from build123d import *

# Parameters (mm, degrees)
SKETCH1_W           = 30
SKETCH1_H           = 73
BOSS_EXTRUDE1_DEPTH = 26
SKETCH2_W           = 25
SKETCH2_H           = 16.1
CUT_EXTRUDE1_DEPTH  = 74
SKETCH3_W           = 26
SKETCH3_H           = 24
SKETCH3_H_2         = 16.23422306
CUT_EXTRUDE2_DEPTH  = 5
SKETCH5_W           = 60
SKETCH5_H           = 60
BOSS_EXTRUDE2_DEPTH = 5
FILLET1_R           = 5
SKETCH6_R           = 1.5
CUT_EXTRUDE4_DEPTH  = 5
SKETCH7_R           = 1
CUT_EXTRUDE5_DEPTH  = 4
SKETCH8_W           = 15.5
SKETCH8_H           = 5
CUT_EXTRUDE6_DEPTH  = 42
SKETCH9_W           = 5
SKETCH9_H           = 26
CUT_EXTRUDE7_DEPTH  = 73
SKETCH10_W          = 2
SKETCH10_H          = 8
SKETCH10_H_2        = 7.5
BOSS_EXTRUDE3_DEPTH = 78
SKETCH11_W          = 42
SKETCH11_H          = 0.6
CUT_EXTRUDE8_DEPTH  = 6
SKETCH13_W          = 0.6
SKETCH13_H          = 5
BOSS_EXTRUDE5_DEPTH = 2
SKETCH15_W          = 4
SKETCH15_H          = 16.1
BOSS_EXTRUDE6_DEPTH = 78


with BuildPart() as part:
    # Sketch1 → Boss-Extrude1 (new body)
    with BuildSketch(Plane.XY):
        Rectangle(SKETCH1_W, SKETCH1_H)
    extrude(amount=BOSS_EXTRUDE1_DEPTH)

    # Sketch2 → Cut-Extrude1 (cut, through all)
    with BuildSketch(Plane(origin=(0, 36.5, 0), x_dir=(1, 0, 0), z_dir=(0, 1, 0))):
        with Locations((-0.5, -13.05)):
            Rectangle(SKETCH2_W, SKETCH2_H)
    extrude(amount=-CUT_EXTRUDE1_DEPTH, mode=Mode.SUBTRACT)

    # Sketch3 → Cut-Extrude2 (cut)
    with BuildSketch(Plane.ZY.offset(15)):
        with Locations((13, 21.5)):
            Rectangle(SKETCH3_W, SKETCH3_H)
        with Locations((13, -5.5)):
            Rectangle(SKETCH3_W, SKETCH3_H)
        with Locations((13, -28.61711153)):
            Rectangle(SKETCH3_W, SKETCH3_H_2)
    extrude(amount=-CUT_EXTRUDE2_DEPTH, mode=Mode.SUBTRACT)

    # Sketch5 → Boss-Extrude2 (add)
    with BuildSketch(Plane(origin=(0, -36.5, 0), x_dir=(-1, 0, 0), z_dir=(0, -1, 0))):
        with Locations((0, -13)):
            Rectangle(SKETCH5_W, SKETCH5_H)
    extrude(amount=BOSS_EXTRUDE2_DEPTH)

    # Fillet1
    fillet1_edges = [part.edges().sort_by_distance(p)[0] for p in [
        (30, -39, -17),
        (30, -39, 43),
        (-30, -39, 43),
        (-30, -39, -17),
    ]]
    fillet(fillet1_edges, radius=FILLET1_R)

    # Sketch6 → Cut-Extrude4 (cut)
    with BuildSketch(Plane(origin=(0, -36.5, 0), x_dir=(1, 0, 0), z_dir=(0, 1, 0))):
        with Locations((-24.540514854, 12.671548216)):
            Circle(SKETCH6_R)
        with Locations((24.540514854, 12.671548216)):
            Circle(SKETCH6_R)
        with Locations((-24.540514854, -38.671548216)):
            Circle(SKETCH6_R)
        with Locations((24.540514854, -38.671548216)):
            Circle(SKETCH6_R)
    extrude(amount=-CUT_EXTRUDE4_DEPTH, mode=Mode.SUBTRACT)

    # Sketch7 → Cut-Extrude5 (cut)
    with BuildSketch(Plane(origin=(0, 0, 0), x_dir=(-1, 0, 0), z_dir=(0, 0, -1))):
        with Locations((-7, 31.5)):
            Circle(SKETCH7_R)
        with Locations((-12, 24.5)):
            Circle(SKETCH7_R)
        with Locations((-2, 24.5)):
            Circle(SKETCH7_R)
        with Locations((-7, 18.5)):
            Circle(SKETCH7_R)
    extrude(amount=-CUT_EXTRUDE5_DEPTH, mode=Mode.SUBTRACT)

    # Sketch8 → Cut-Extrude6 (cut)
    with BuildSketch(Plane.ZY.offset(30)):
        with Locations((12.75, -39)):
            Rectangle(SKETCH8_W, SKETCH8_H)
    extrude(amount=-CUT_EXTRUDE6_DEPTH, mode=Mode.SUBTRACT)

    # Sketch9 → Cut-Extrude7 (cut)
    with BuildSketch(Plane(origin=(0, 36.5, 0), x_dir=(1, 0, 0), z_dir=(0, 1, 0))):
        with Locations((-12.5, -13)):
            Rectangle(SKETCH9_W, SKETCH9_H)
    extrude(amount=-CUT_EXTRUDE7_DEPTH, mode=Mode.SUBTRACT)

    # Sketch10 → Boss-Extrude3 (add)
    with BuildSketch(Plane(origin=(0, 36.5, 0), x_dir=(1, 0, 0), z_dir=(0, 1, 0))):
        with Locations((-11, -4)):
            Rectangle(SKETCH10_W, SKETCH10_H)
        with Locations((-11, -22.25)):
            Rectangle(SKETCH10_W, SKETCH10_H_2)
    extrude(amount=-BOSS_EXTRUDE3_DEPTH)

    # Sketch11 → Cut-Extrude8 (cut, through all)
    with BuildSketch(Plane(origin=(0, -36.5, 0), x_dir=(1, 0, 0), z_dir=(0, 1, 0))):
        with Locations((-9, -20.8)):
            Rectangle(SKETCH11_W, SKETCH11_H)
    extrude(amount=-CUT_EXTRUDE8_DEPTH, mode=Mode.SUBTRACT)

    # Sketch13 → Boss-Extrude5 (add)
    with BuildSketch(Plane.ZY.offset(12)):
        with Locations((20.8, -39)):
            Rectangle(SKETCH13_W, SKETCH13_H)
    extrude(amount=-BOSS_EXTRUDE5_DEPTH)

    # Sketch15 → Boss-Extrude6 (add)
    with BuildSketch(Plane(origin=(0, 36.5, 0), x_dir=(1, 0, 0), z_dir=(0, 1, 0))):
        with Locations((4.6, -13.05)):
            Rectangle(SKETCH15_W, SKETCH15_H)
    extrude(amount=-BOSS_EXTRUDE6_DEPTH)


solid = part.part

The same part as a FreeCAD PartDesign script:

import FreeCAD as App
import Part
import Sketcher
from FreeCAD import Vector


def edges_at(feature, points):
    """Names of the edges that pass closest to the given points."""
    edges = feature.Shape.Edges
    near = lambda p: min(range(len(edges)), key=lambda i: edges[i].distToShape(Part.Vertex(*p))[0])
    return sorted({f"Edge{near(p) + 1}" for p in points})

doc = App.newDocument("Part")
body = doc.addObject("PartDesign::Body", "Body")

# Sketch on XY plane
sketch1 = body.newObject("Sketcher::SketchObject", "Sketch")
sketch1.AttachmentSupport = (doc.getObject("XY_Plane"), [""])
sketch1.MapMode = "FlatFace"
sketch1.addGeometry([
    Part.LineSegment(Vector(-15, 36, 0), Vector(-15, -36, 0)),
    Part.LineSegment(Vector(-15, -36, 0), Vector(15, -36, 0)),
    Part.LineSegment(Vector(15, -36, 0), Vector(15, 36, 0)),
    Part.LineSegment(Vector(15, 36, 0), Vector(-15, 36, 0)),
], False)
sketch1.addConstraint([
    Sketcher.Constraint("Coincident", 0, 2, 1, 1),
    Sketcher.Constraint("Coincident", 1, 2, 2, 1),
    Sketcher.Constraint("Coincident", 2, 2, 3, 1),
    Sketcher.Constraint("Coincident", 3, 2, 0, 1),
    Sketcher.Constraint("Vertical", 0),
    Sketcher.Constraint("Horizontal", 1),
    Sketcher.Constraint("Vertical", 2),
    Sketcher.Constraint("Horizontal", 3),
    Sketcher.Constraint("Symmetric", 0, 2, 2, 2, -1, 1),
    Sketcher.Constraint("DistanceX", 1, 1, 1, 2, 30.0),
    Sketcher.Constraint("DistanceY", 0, 2, 0, 1, 73.0),
])
pad1 = body.newObject("PartDesign::Pad", "Pad")
pad1.Profile = sketch1
pad1.Length = 26

# Sketch on XZ plane
sketch2 = body.newObject("Sketcher::SketchObject", "Sketch001")
sketch2.AttachmentSupport = (doc.getObject("XZ_Plane"), [""])
sketch2.MapMode = "FlatFace"
sketch2.AttachmentOffset = App.Placement(Vector(0, 0, -36.5), App.Rotation())
sketch2.addGeometry([
    Part.LineSegment(Vector(-13, 5, 0), Vector(-13, 21, 0)),
    Part.LineSegment(Vector(-13, 21, 0), Vector(12, 21, 0)),
    Part.LineSegment(Vector(12, 21, 0), Vector(12, 5, 0)),
    Part.LineSegment(Vector(12, 5, 0), Vector(-13, 5, 0)),
], False)
sketch2.addConstraint([
    Sketcher.Constraint("Coincident", 0, 2, 1, 1),
    Sketcher.Constraint("Coincident", 1, 2, 2, 1),
    Sketcher.Constraint("Coincident", 2, 2, 3, 1),
    Sketcher.Constraint("Coincident", 3, 2, 0, 1),
    Sketcher.Constraint("Vertical", 0),
    Sketcher.Constraint("Horizontal", 1),
    Sketcher.Constraint("Vertical", 2),
    Sketcher.Constraint("Horizontal", 3),
    Sketcher.Constraint("DistanceX", 1, 1, 1, 2, 25.0),
    Sketcher.Constraint("DistanceY", 0, 1, 0, 2, 16.1),
    Sketcher.Constraint("DistanceX", 0, 2, -1, 1, 13.0),
    Sketcher.Constraint("DistanceY", -1, 1, 2, 2, 5.0),
])
pocket1 = body.newObject("PartDesign::Pocket", "Pocket")
pocket1.Profile = sketch2
pocket1.Type = "ThroughAll"
pocket1.Reversed = True

# Sketch on YZ plane
sketch3 = body.newObject("Sketcher::SketchObject", "Sketch002")
sketch3.AttachmentSupport = (doc.getObject("YZ_Plane"), [""])
sketch3.MapMode = "FlatFace"
sketch3.AttachmentOffset = App.Placement(Vector(0, 0, -15), App.Rotation())
sketch3.addGeometry([
    Part.LineSegment(Vector(34, 0, 0), Vector(10, 0, 0)),  # 0
    Part.LineSegment(Vector(10, 0, 0), Vector(10, 26, 0)),  # 1
    Part.LineSegment(Vector(10, 26, 0), Vector(34, 26, 0)),  # 2
    Part.LineSegment(Vector(34, 26, 0), Vector(34, 0, 0)),  # 3
    Part.LineSegment(Vector(6, 0, 0), Vector(-18, 0, 0)),  # 4
    Part.LineSegment(Vector(-18, 0, 0), Vector(-18, 26, 0)),  # 5
    Part.LineSegment(Vector(-18, 26, 0), Vector(6, 26, 0)),  # 6
    Part.LineSegment(Vector(6, 26, 0), Vector(6, 0, 0)),  # 7
    Part.LineSegment(Vector(-20, 0, 0), Vector(-37, 0, 0)),  # 8
    Part.LineSegment(Vector(-37, 0, 0), Vector(-37, 26, 0)),  # 9
    Part.LineSegment(Vector(-37, 26, 0), Vector(-20, 26, 0)),  # 10
    Part.LineSegment(Vector(-20, 26, 0), Vector(-20, 0, 0)),  # 11
], False)
sketch3.addConstraint([
    Sketcher.Constraint("Coincident", 0, 2, 1, 1),
    Sketcher.Constraint("Coincident", 1, 2, 2, 1),
    Sketcher.Constraint("Coincident", 2, 2, 3, 1),
    Sketcher.Constraint("Coincident", 3, 2, 0, 1),
    Sketcher.Constraint("Coincident", 4, 2, 5, 1),
    Sketcher.Constraint("Coincident", 5, 2, 6, 1),
    Sketcher.Constraint("Coincident", 6, 2, 7, 1),
    Sketcher.Constraint("Coincident", 7, 2, 4, 1),
    Sketcher.Constraint("Coincident", 8, 2, 9, 1),
    Sketcher.Constraint("Coincident", 9, 2, 10, 1),
    Sketcher.Constraint("Coincident", 10, 2, 11, 1),
    Sketcher.Constraint("Coincident", 11, 2, 8, 1),
    Sketcher.Constraint("Horizontal", 0),
    Sketcher.Constraint("Vertical", 1),
    Sketcher.Constraint("Horizontal", 2),
    Sketcher.Constraint("Vertical", 3),
    Sketcher.Constraint("Horizontal", 4),
    Sketcher.Constraint("Vertical", 5),
    Sketcher.Constraint("Horizontal", 6),
    Sketcher.Constraint("Vertical", 7),
    Sketcher.Constraint("Horizontal", 8),
    Sketcher.Constraint("Vertical", 9),
    Sketcher.Constraint("Horizontal", 10),
    Sketcher.Constraint("Vertical", 11),
    Sketcher.Constraint("PointOnObject", 0, 2, -1),
    Sketcher.Constraint("PointOnObject", 4, 2, -1),
    Sketcher.Constraint("PointOnObject", 8, 2, -1),
    Sketcher.Constraint("Horizontal", 2, 2, 5, 2),
    Sketcher.Constraint("Horizontal", 6, 2, 9, 2),
    Sketcher.Constraint("Equal", 2, 4),
    Sketcher.Constraint("DistanceX", 0, 2, 0, 1, 24.0),
    Sketcher.Constraint("DistanceY", 1, 1, 1, 2, 26.0),
    Sketcher.Constraint("DistanceX", 4, 2, 0, 2, 27.0),
    Sketcher.Constraint("DistanceX", 10, 2, 5, 2, 3.0),
    Sketcher.Constraint("DistanceX", -1, 1, 0, 2, 9.5),
    Sketcher.Constraint("DistanceX", 8, 2, 8, 1, 16.234223),
])
pocket2 = body.newObject("PartDesign::Pocket", "Pocket001")
pocket2.Profile = sketch3
pocket2.Length = 5
pocket2.Reversed = True

# Sketch on XZ plane
sketch4 = body.newObject("Sketcher::SketchObject", "Sketch003")
sketch4.AttachmentSupport = (doc.getObject("XZ_Plane"), [""])
sketch4.MapMode = "FlatFace"
sketch4.AttachmentOffset = App.Placement(Vector(0, 0, 36.5), App.Rotation())
sketch4.addGeometry([
    Part.LineSegment(Vector(30, -17, 0), Vector(30, 43, 0)),
    Part.LineSegment(Vector(30, 43, 0), Vector(-30, 43, 0)),
    Part.LineSegment(Vector(-30, 43, 0), Vector(-30, -17, 0)),
    Part.LineSegment(Vector(-30, -17, 0), Vector(30, -17, 0)),
], False)
sketch4.addConstraint([
    Sketcher.Constraint("Coincident", 0, 2, 1, 1),
    Sketcher.Constraint("Coincident", 1, 2, 2, 1),
    Sketcher.Constraint("Coincident", 2, 2, 3, 1),
    Sketcher.Constraint("Coincident", 3, 2, 0, 1),
    Sketcher.Constraint("Vertical", 0),
    Sketcher.Constraint("Horizontal", 1),
    Sketcher.Constraint("Vertical", 2),
    Sketcher.Constraint("Horizontal", 3),
    Sketcher.Constraint("Equal", 3, 0),
    Sketcher.Constraint("DistanceX", 1, 2, 1, 1, 60.0),
    Sketcher.Constraint("DistanceX", -1, 1, 0, 2, 30.0),
    Sketcher.Constraint("DistanceY", -1, 1, 0, 2, 43.0),
])
pad2 = body.newObject("PartDesign::Pad", "Pad001")
pad2.Profile = sketch4
pad2.Length = 5
doc.recompute()

fillet = body.newObject("PartDesign::Fillet", "Fillet")
fillet.Base = (pad2, edges_at(pad2, [
    (30, -39, -17),
    (30, -39, 43),
    (-30, -39, 43),
    (-30, -39, -17),
]))
fillet.Radius = 5

# Sketch on XZ plane
sketch5 = body.newObject("Sketcher::SketchObject", "Sketch004")
sketch5.AttachmentSupport = (doc.getObject("XZ_Plane"), [""])
sketch5.MapMode = "FlatFace"
sketch5.AttachmentOffset = App.Placement(Vector(0, 0, 36.5), App.Rotation())
sketch5.addGeometry([
    Part.Circle(Vector(-24.5, -12.7, 0), Vector(0, 0, 1), 1.5),
    Part.Circle(Vector(24.5, -12.7, 0), Vector(0, 0, 1), 1.5),
    Part.Circle(Vector(-24.5, 38.7, 0), Vector(0, 0, 1), 1.5),
    Part.Circle(Vector(24.5, 38.7, 0), Vector(0, 0, 1), 1.5),
], False)
sketch5.addConstraint([
    Sketcher.Constraint("Equal", 0, 1),
    Sketcher.Constraint("Equal", 1, 2),
    Sketcher.Constraint("Equal", 2, 3),
    Sketcher.Constraint("Symmetric", 0, 3, 1, 3, -2),
    Sketcher.Constraint("Symmetric", 2, 3, 3, 3, -2),
    Sketcher.Constraint("Vertical", 0, 3, 2, 3),
    Sketcher.Constraint("Diameter", 0, 3.0),
    Sketcher.Constraint("DistanceY", 0, 3, -1, 1, 12.671548),
    Sketcher.Constraint("DistanceY", -1, 1, 2, 3, 38.671548),
    Sketcher.Constraint("DistanceX", 0, 3, 1, 3, 49.08103),
])
pocket3 = body.newObject("PartDesign::Pocket", "Pocket002")
pocket3.Profile = sketch5
pocket3.Length = 5
pocket3.Reversed = True

# Sketch on XY plane
sketch6 = body.newObject("Sketcher::SketchObject", "Sketch005")
sketch6.AttachmentSupport = (doc.getObject("XY_Plane"), [""])
sketch6.MapMode = "FlatFace"
sketch6.addGeometry([
    Part.Circle(Vector(7, 31.5, 0), Vector(0, 0, 1), 1),
    Part.Circle(Vector(12, 24.5, 0), Vector(0, 0, 1), 1),
    Part.Circle(Vector(2, 24.5, 0), Vector(0, 0, 1), 1),
    Part.Circle(Vector(7, 18.5, 0), Vector(0, 0, 1), 1),
], False)
sketch6.addConstraint([
    Sketcher.Constraint("Equal", 0, 1),
    Sketcher.Constraint("Equal", 1, 2),
    Sketcher.Constraint("Equal", 2, 3),
    Sketcher.Constraint("Horizontal", 1, 3, 2, 3),
    Sketcher.Constraint("Vertical", 0, 3, 3, 3),
    Sketcher.Constraint("Diameter", 0, 2.0),
    Sketcher.Constraint("DistanceX", -1, 1, 0, 3, 7.0),
    Sketcher.Constraint("DistanceX", -1, 1, 1, 3, 12.0),
    Sketcher.Constraint("DistanceX", -1, 1, 2, 3, 2.0),
    Sketcher.Constraint("DistanceY", 1, 3, 0, 3, 7.0),
    Sketcher.Constraint("DistanceY", 3, 3, 1, 3, 6.0),
    Sketcher.Constraint("DistanceY", -1, 1, 0, 3, 31.5),
])
pocket4 = body.newObject("PartDesign::Pocket", "Pocket003")
pocket4.Profile = sketch6
pocket4.Length = 4
pocket4.Reversed = True

# Sketch on YZ plane
sketch7 = body.newObject("Sketcher::SketchObject", "Sketch006")
sketch7.AttachmentSupport = (doc.getObject("YZ_Plane"), [""])
sketch7.MapMode = "FlatFace"
sketch7.AttachmentOffset = App.Placement(Vector(0, 0, -30), App.Rotation())
sketch7.addGeometry([
    Part.LineSegment(Vector(-36, 5, 0), Vector(-42, 5, 0)),
    Part.LineSegment(Vector(-42, 5, 0), Vector(-42, 20, 0)),
    Part.LineSegment(Vector(-42, 20, 0), Vector(-36, 20, 0)),
    Part.LineSegment(Vector(-36, 20, 0), Vector(-36, 5, 0)),
], False)
sketch7.addConstraint([
    Sketcher.Constraint("Coincident", 0, 2, 1, 1),
    Sketcher.Constraint("Coincident", 1, 2, 2, 1),
    Sketcher.Constraint("Coincident", 2, 2, 3, 1),
    Sketcher.Constraint("Coincident", 3, 2, 0, 1),
    Sketcher.Constraint("Horizontal", 0),
    Sketcher.Constraint("Vertical", 1),
    Sketcher.Constraint("Horizontal", 2),
    Sketcher.Constraint("Vertical", 3),
    Sketcher.Constraint("DistanceX", 0, 2, 0, 1, 5.0),
    Sketcher.Constraint("DistanceY", 1, 1, 1, 2, 15.5),
    Sketcher.Constraint("DistanceY", -1, 1, 0, 2, 5.0),
    Sketcher.Constraint("DistanceX", 0, 2, -1, 1, 41.5),
])
pocket5 = body.newObject("PartDesign::Pocket", "Pocket004")
pocket5.Profile = sketch7
pocket5.Length = 42
pocket5.Reversed = True

# Sketch on XZ plane
sketch8 = body.newObject("Sketcher::SketchObject", "Sketch007")
sketch8.AttachmentSupport = (doc.getObject("XZ_Plane"), [""])
sketch8.MapMode = "FlatFace"
sketch8.AttachmentOffset = App.Placement(Vector(0, 0, -36.5), App.Rotation())
sketch8.addGeometry([
    Part.LineSegment(Vector(-15, 0, 0), Vector(-15, 26, 0)),
    Part.LineSegment(Vector(-15, 26, 0), Vector(-10, 26, 0)),
    Part.LineSegment(Vector(-10, 26, 0), Vector(-10, 0, 0)),
    Part.LineSegment(Vector(-10, 0, 0), Vector(-15, 0, 0)),
], False)
sketch8.addConstraint([
    Sketcher.Constraint("Coincident", 0, 2, 1, 1),
    Sketcher.Constraint("Coincident", 1, 2, 2, 1),
    Sketcher.Constraint("Coincident", 2, 2, 3, 1),
    Sketcher.Constraint("Coincident", 3, 2, 0, 1),
    Sketcher.Constraint("Vertical", 0),
    Sketcher.Constraint("Horizontal", 1),
    Sketcher.Constraint("Vertical", 2),
    Sketcher.Constraint("Horizontal", 3),
    Sketcher.Constraint("PointOnObject", 2, 2, -1),
    Sketcher.Constraint("DistanceX", 1, 1, 1, 2, 5.0),
    Sketcher.Constraint("DistanceY", 0, 1, 0, 2, 26.0),
    Sketcher.Constraint("DistanceX", 0, 2, -1, 1, 15.0),
])
pocket6 = body.newObject("PartDesign::Pocket", "Pocket005")
pocket6.Profile = sketch8
pocket6.Length = 73
pocket6.Reversed = True

# Sketch on XZ plane
sketch9 = body.newObject("Sketcher::SketchObject", "Sketch008")
sketch9.AttachmentSupport = (doc.getObject("XZ_Plane"), [""])
sketch9.MapMode = "FlatFace"
sketch9.AttachmentOffset = App.Placement(Vector(0, 0, -36.5), App.Rotation())
sketch9.addGeometry([
    Part.LineSegment(Vector(-12, 0, 0), Vector(-12, 8, 0)),  # 0
    Part.LineSegment(Vector(-12, 8, 0), Vector(-10, 8, 0)),  # 1
    Part.LineSegment(Vector(-10, 8, 0), Vector(-10, 0, 0)),  # 2
    Part.LineSegment(Vector(-10, 0, 0), Vector(-12, 0, 0)),  # 3
    Part.LineSegment(Vector(-12, 18.5, 0), Vector(-12, 26, 0)),  # 4
    Part.LineSegment(Vector(-12, 26, 0), Vector(-10, 26, 0)),  # 5
    Part.LineSegment(Vector(-10, 26, 0), Vector(-10, 18.5, 0)),  # 6
    Part.LineSegment(Vector(-10, 18.5, 0), Vector(-12, 18.5, 0)),  # 7
], False)
sketch9.addConstraint([
    Sketcher.Constraint("Coincident", 0, 2, 1, 1),
    Sketcher.Constraint("Coincident", 1, 2, 2, 1),
    Sketcher.Constraint("Coincident", 2, 2, 3, 1),
    Sketcher.Constraint("Coincident", 3, 2, 0, 1),
    Sketcher.Constraint("Coincident", 4, 2, 5, 1),
    Sketcher.Constraint("Coincident", 5, 2, 6, 1),
    Sketcher.Constraint("Coincident", 6, 2, 7, 1),
    Sketcher.Constraint("Coincident", 7, 2, 4, 1),
    Sketcher.Constraint("Vertical", 0),
    Sketcher.Constraint("Horizontal", 1),
    Sketcher.Constraint("Vertical", 2),
    Sketcher.Constraint("Horizontal", 3),
    Sketcher.Constraint("Vertical", 4),
    Sketcher.Constraint("Horizontal", 5),
    Sketcher.Constraint("Vertical", 6),
    Sketcher.Constraint("Horizontal", 7),
    Sketcher.Constraint("PointOnObject", 2, 2, -1),
    Sketcher.Constraint("Vertical", 3, 2, 4, 2),
    Sketcher.Constraint("Vertical", 2, 2, 5, 2),
    Sketcher.Constraint("DistanceX", 1, 1, 1, 2, 2.0),
    Sketcher.Constraint("DistanceY", 0, 1, 0, 2, 8.0),
    Sketcher.Constraint("DistanceY", 4, 1, 4, 2, 7.5),
    Sketcher.Constraint("DistanceX", 0, 2, -1, 1, 12.0),
    Sketcher.Constraint("DistanceY", -1, 1, 4, 2, 26.0),
])
pad3 = body.newObject("PartDesign::Pad", "Pad002")
pad3.Profile = sketch9
pad3.Length = 78

# Sketch on XZ plane
sketch10 = body.newObject("Sketcher::SketchObject", "Sketch009")
sketch10.AttachmentSupport = (doc.getObject("XZ_Plane"), [""])
sketch10.MapMode = "FlatFace"
sketch10.AttachmentOffset = App.Placement(Vector(0, 0, 36.5), App.Rotation())
sketch10.addGeometry([
    Part.LineSegment(Vector(-30, 20.5, 0), Vector(-30, 21.1, 0)),
    Part.LineSegment(Vector(-30, 21.1, 0), Vector(12, 21.1, 0)),
    Part.LineSegment(Vector(12, 21.1, 0), Vector(12, 20.5, 0)),
    Part.LineSegment(Vector(12, 20.5, 0), Vector(-30, 20.5, 0)),
], False)
sketch10.addConstraint([
    Sketcher.Constraint("Coincident", 0, 2, 1, 1),
    Sketcher.Constraint("Coincident", 1, 2, 2, 1),
    Sketcher.Constraint("Coincident", 2, 2, 3, 1),
    Sketcher.Constraint("Coincident", 3, 2, 0, 1),
    Sketcher.Constraint("Vertical", 0),
    Sketcher.Constraint("Horizontal", 1),
    Sketcher.Constraint("Vertical", 2),
    Sketcher.Constraint("Horizontal", 3),
    Sketcher.Constraint("DistanceX", 1, 1, 1, 2, 42.0),
    Sketcher.Constraint("DistanceY", 0, 1, 0, 2, 0.6),
    Sketcher.Constraint("DistanceX", 0, 2, -1, 1, 30.0),
    Sketcher.Constraint("DistanceY", -1, 1, 0, 2, 21.1),
])
pocket7 = body.newObject("PartDesign::Pocket", "Pocket006")
pocket7.Profile = sketch10
pocket7.Type = "ThroughAll"
pocket7.Reversed = True

# Sketch on YZ plane
sketch11 = body.newObject("Sketcher::SketchObject", "Sketch010")
sketch11.AttachmentSupport = (doc.getObject("YZ_Plane"), [""])
sketch11.MapMode = "FlatFace"
sketch11.AttachmentOffset = App.Placement(Vector(0, 0, -12), App.Rotation())
sketch11.addGeometry([
    Part.LineSegment(Vector(-36.5, 20.5, 0), Vector(-41.5, 20.5, 0)),
    Part.LineSegment(Vector(-41.5, 20.5, 0), Vector(-41.5, 21.1, 0)),
    Part.LineSegment(Vector(-41.5, 21.1, 0), Vector(-36.5, 21.1, 0)),
    Part.LineSegment(Vector(-36.5, 21.1, 0), Vector(-36.5, 20.5, 0)),
], False)
sketch11.addConstraint([
    Sketcher.Constraint("Coincident", 0, 2, 1, 1),
    Sketcher.Constraint("Coincident", 1, 2, 2, 1),
    Sketcher.Constraint("Coincident", 2, 2, 3, 1),
    Sketcher.Constraint("Coincident", 3, 2, 0, 1),
    Sketcher.Constraint("Horizontal", 0),
    Sketcher.Constraint("Vertical", 1),
    Sketcher.Constraint("Horizontal", 2),
    Sketcher.Constraint("Vertical", 3),
    Sketcher.Constraint("DistanceX", 0, 2, 0, 1, 5.0),
    Sketcher.Constraint("DistanceY", 1, 1, 1, 2, 0.6),
    Sketcher.Constraint("DistanceX", 0, 2, -1, 1, 41.5),
    Sketcher.Constraint("DistanceY", -1, 1, 0, 2, 20.5),
])
pad4 = body.newObject("PartDesign::Pad", "Pad003")
pad4.Profile = sketch11
pad4.Length = 2

# Sketch on XZ plane
sketch12 = body.newObject("Sketcher::SketchObject", "Sketch011")
sketch12.AttachmentSupport = (doc.getObject("XZ_Plane"), [""])
sketch12.MapMode = "FlatFace"
sketch12.AttachmentOffset = App.Placement(Vector(0, 0, -36.5), App.Rotation())
sketch12.addGeometry([
    Part.LineSegment(Vector(2.6, 5, 0), Vector(2.6, 21.1, 0)),
    Part.LineSegment(Vector(2.6, 21.1, 0), Vector(6.6, 21.1, 0)),
    Part.LineSegment(Vector(6.6, 21.1, 0), Vector(6.6, 5, 0)),
    Part.LineSegment(Vector(6.6, 5, 0), Vector(2.6, 5, 0)),
], False)
sketch12.addConstraint([
    Sketcher.Constraint("Coincident", 0, 2, 1, 1),
    Sketcher.Constraint("Coincident", 1, 2, 2, 1),
    Sketcher.Constraint("Coincident", 2, 2, 3, 1),
    Sketcher.Constraint("Coincident", 3, 2, 0, 1),
    Sketcher.Constraint("Vertical", 0),
    Sketcher.Constraint("Horizontal", 1),
    Sketcher.Constraint("Vertical", 2),
    Sketcher.Constraint("Horizontal", 3),
    Sketcher.Constraint("DistanceX", 1, 1, 1, 2, 4.0),
    Sketcher.Constraint("DistanceY", 0, 1, 0, 2, 16.1),
    Sketcher.Constraint("DistanceY", -1, 1, 2, 2, 5.0),
    Sketcher.Constraint("DistanceX", -1, 1, 0, 2, 2.6),
])
pad5 = body.newObject("PartDesign::Pad", "Pad004")
pad5.Profile = sketch12
pad5.Length = 78

doc.recompute()
